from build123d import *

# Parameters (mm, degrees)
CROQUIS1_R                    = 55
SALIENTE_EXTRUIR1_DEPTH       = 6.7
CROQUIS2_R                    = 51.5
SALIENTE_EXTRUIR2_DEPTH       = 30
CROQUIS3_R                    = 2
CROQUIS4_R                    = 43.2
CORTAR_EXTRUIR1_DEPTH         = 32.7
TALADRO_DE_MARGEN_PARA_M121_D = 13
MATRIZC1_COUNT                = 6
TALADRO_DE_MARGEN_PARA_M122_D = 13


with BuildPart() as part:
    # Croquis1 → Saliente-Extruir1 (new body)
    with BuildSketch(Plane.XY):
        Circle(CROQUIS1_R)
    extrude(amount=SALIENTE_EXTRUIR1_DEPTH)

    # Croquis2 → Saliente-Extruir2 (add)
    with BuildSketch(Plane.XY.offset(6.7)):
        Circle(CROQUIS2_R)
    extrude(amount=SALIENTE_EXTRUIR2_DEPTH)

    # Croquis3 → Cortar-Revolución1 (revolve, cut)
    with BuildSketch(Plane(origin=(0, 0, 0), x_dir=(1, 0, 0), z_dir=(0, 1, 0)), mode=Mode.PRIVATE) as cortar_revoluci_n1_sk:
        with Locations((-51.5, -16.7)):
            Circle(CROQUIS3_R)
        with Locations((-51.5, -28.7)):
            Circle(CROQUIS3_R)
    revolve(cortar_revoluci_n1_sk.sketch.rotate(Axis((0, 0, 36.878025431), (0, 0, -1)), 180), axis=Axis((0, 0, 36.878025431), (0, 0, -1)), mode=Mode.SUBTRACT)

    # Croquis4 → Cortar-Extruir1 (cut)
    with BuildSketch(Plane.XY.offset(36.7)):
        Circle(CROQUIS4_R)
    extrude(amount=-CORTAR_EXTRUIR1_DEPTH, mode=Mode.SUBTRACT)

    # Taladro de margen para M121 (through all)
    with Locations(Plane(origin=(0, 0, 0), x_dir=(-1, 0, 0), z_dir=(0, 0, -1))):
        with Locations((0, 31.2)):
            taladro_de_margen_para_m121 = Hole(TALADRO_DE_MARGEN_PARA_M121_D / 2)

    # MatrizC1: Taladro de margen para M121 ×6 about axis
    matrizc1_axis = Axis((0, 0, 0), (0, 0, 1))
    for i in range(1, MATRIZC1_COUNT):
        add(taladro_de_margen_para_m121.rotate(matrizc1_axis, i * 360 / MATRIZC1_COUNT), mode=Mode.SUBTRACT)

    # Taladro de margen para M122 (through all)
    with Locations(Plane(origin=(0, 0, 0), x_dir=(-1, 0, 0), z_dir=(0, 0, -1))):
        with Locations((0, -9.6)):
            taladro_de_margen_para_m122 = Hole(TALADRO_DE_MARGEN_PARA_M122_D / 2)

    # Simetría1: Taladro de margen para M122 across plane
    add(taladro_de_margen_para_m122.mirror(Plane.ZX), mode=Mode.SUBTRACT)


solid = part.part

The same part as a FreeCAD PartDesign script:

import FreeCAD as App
import Part
import Sketcher

V = App.Vector
Q = App.Units.Quantity

doc = App.newDocument("Part")
body = doc.addObject("PartDesign::Body", "Body")

# Sketch on XY plane
sketch1 = body.newObject("Sketcher::SketchObject", "Sketch")
sketch1.AttachmentSupport = (doc.getObject("XY_Plane"), [""])
sketch1.MapMode = "FlatFace"
sketch1.addGeometry(Part.Circle(V(0, 0, 0), V(0, 0, 1), 55), False)
sketch1.addConstraint([
    Sketcher.Constraint("Coincident", 0, 3, -1, 1),
    Sketcher.Constraint("Diameter", 0, Q("110 mm")),
])
pad1 = body.newObject("PartDesign::Pad", "Pad")
pad1.Profile = sketch1
pad1.Length = 6.7

# Sketch on XY plane
sketch2 = body.newObject("Sketcher::SketchObject", "Sketch001")
sketch2.AttachmentSupport = (doc.getObject("XY_Plane"), [""])
sketch2.MapMode = "FlatFace"
sketch2.AttachmentOffset = App.Placement(V(0, 0, 6.7), App.Rotation())
sketch2.addGeometry(Part.Circle(V(0, 0, 0), V(0, 0, 1), 52), False)
sketch2.addConstraint([
    Sketcher.Constraint("Coincident", 0, 3, -1, 1),
    Sketcher.Constraint("Diameter", 0, Q("103 mm")),
])
pad2 = body.newObject("PartDesign::Pad", "Pad001")
pad2.Profile = sketch2
pad2.Length = 30

# Sketch on XZ plane
sketch3 = body.newObject("Sketcher::SketchObject", "Sketch002")
sketch3.AttachmentSupport = (doc.getObject("XZ_Plane"), [""])
sketch3.MapMode = "FlatFace"
sketch3.addGeometry([
    Part.Circle(V(-51.5, 16.7, 0), V(0, 0, 1), 2),
    Part.Circle(V(-51.5, 28.7, 0), V(0, 0, 1), 2),
], False)
sketch3.addConstraint([
    Sketcher.Constraint("Equal", 0, 1),
    Sketcher.Constraint("Vertical", 0, 3, 1, 3),
    Sketcher.Constraint("Diameter", 0, Q("4 mm")),
    Sketcher.Constraint("DistanceY", 0, 3, 1, 3, Q("12 mm")),
    Sketcher.Constraint("DistanceX", 0, 3, -1, 1, Q("51.5 mm")),
    Sketcher.Constraint("DistanceY", -1, 1, 0, 3, Q("16.7 mm")),
])
groove = body.newObject("PartDesign::Groove", "Groove")
groove.Profile = sketch3
groove.ReferenceAxis = (sketch3, ["V_Axis"])
groove.Angle = 360

# Sketch on XY plane
sketch4 = body.newObject("Sketcher::SketchObject", "Sketch003")
sketch4.AttachmentSupport = (doc.getObject("XY_Plane"), [""])
sketch4.MapMode = "FlatFace"
sketch4.AttachmentOffset = App.Placement(V(0, 0, 36.7), App.Rotation())
sketch4.addGeometry(Part.Circle(V(0, 0, 0), V(0, 0, 1), 43), False)
sketch4.addConstraint([
    Sketcher.Constraint("Coincident", 0, 3, -1, 1),
    Sketcher.Constraint("Diameter", 0, Q("86.4 mm")),
])
pocket1 = body.newObject("PartDesign::Pocket", "Pocket")
pocket1.Profile = sketch4
pocket1.Length = 32.7

# Sketch on XY plane
sketch5 = body.newObject("Sketcher::SketchObject", "Sketch004")
sketch5.AttachmentSupport = (doc.getObject("XY_Plane"), [""])
sketch5.MapMode = "FlatFace"
sketch5.addGeometry(Part.Circle(V(0, 31, 0), V(0, 0, 1), 6), False)
sketch5.addConstraint([
    Sketcher.Constraint("PointOnObject", 0, 3, -2),
    Sketcher.Constraint("Diameter", 0, Q("13 mm")),
    Sketcher.Constraint("DistanceY", -1, 1, 0, 3, Q("31.2 mm")),
])
doc.recompute()
hole = body.newObject("PartDesign::Hole", "Hole")
hole.Profile = sketch5
hole.ThreadType = "None"
hole.Diameter = 13
hole.DepthType = "ThroughAll"
hole.Reversed = True
doc.recompute()

polarpattern = body.newObject("PartDesign::PolarPattern", "PolarPattern")
polarpattern.Originals = [hole]
polarpattern.Axis = (doc.getObject("Z_Axis"), [""])
polarpattern.Angle = 360
polarpattern.Occurrences = 6
body.Tip = polarpattern

# Sketch on XY plane
sketch6 = body.newObject("Sketcher::SketchObject", "Sketch005")
sketch6.AttachmentSupport = (doc.getObject("XY_Plane"), [""])
sketch6.MapMode = "FlatFace"
sketch6.addGeometry(Part.Circle(V(0, -10, 0), V(0, 0, 1), 6), False)
sketch6.addConstraint([
    Sketcher.Constraint("PointOnObject", 0, 3, -2),
    Sketcher.Constraint("Diameter", 0, Q("13 mm")),
    Sketcher.Constraint("DistanceY", 0, 3, -1, 1, Q("9.6 mm")),
])
doc.recompute()
hole2 = body.newObject("PartDesign::Hole", "Hole001")
hole2.Profile = sketch6
hole2.ThreadType = "None"
hole2.Diameter = 13
hole2.DepthType = "ThroughAll"
hole2.Reversed = True
doc.recompute()

mirrored = body.newObject("PartDesign::Mirrored", "Mirrored")
mirrored.Originals = [hole2]
mirrored.MirrorPlane = (doc.getObject("XZ_Plane"), [""])
body.Tip = mirrored

doc.recompute()
